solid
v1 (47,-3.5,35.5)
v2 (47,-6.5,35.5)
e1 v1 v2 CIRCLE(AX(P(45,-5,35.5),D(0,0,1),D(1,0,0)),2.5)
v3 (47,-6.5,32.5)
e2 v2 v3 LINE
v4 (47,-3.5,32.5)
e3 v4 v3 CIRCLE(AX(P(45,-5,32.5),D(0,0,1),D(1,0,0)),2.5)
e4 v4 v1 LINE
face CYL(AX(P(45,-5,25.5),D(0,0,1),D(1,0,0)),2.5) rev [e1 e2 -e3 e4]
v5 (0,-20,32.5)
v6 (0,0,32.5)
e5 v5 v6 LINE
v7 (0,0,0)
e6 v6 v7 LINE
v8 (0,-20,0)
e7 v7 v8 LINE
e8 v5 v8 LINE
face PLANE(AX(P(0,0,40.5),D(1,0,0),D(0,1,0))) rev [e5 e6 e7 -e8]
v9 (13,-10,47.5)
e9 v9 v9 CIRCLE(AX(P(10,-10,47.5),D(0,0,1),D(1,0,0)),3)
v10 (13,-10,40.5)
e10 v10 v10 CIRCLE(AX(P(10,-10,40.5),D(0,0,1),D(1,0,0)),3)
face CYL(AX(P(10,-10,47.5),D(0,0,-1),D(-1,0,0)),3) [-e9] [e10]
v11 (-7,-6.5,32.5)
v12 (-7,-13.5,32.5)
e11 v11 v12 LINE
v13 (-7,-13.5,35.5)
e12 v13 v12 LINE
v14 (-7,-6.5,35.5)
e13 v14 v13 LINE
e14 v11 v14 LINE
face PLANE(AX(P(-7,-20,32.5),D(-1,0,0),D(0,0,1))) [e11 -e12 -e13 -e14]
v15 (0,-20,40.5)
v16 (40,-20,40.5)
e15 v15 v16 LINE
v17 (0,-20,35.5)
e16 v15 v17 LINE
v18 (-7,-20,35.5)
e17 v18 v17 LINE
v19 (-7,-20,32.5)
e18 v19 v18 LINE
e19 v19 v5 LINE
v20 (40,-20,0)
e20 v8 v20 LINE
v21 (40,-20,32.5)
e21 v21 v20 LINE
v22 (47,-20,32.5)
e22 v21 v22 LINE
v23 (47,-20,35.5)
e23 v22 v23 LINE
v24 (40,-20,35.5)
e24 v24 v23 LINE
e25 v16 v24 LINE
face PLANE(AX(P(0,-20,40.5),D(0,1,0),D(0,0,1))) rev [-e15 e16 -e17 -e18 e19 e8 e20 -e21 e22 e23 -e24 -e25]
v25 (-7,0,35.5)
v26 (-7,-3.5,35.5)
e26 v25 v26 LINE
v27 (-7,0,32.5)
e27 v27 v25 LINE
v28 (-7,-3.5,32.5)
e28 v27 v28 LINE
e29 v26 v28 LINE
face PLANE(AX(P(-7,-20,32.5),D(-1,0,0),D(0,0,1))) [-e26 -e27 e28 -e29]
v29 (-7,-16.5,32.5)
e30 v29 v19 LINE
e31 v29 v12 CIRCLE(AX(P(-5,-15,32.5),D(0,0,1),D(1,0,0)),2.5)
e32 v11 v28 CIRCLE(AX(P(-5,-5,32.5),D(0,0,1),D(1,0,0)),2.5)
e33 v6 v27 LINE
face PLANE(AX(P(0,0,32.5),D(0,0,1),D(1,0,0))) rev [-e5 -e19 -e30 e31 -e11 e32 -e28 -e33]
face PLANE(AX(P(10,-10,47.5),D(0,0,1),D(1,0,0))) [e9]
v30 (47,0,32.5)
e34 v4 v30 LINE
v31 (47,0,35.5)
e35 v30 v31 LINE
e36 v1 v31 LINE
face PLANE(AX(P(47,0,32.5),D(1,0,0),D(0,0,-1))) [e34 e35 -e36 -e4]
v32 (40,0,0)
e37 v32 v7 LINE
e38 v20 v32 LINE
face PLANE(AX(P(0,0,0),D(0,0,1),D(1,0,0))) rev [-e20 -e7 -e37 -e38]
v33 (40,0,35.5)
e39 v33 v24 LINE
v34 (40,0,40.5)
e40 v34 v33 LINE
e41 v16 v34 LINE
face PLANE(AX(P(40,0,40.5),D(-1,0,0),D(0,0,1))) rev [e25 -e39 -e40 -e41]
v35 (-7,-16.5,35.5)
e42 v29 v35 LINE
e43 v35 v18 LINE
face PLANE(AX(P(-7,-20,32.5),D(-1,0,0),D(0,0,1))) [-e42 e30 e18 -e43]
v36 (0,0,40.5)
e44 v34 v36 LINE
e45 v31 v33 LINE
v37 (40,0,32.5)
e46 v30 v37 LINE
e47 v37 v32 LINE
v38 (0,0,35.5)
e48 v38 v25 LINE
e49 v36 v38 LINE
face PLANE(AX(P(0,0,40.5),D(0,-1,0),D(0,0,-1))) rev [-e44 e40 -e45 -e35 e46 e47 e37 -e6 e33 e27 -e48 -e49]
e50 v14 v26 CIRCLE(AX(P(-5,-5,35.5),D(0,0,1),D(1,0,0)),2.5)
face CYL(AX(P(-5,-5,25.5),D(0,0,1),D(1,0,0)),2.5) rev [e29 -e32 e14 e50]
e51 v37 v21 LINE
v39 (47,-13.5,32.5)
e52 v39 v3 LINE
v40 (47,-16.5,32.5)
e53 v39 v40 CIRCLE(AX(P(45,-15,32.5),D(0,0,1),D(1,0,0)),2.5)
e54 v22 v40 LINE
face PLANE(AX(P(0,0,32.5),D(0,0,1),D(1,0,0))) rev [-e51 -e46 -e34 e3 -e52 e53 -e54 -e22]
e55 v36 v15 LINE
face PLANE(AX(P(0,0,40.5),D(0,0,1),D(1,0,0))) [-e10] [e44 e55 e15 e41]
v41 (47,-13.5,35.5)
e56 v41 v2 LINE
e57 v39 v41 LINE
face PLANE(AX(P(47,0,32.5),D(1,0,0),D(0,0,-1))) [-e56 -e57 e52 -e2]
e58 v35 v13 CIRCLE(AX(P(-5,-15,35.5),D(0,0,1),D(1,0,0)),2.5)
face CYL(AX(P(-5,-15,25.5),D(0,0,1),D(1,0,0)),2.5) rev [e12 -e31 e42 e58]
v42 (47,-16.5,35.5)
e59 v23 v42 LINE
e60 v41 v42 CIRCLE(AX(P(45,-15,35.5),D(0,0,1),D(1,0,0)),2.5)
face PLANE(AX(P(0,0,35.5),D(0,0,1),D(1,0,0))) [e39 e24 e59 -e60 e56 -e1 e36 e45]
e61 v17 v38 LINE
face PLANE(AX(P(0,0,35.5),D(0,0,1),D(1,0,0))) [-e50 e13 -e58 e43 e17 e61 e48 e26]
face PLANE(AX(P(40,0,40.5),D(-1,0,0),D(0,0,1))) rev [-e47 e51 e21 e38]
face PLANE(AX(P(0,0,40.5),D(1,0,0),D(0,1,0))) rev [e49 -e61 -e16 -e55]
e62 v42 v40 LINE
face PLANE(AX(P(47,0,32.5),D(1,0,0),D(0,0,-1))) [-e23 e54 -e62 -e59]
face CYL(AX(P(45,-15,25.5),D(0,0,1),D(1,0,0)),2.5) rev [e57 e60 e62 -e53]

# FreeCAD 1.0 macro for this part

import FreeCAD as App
import Part
import Sketcher

V = App.Vector

doc = App.newDocument("Part")
body = doc.addObject("PartDesign::Body", "Body")

# Sketch on XY plane
sketch1 = body.newObject("Sketcher::SketchObject", "Sketch")
sketch1.AttachmentSupport = (doc.getObject("XY_Plane"), [""])
sketch1.MapMode = "FlatFace"
sketch1.addGeometry([
    Part.LineSegment(V(0, 0, 0), V(0, -20, 0)),
    Part.LineSegment(V(0, -20, 0), V(40, -20, 0)),
    Part.LineSegment(V(40, -20, 0), V(40, 0, 0)),
    Part.LineSegment(V(40, 0, 0), V(0, 0, 0)),
], False)
sketch1.addConstraint([
    Sketcher.Constraint("Coincident", 0, 2, 1, 1),
    Sketcher.Constraint("Coincident", 1, 2, 2, 1),
    Sketcher.Constraint("Coincident", 2, 2, 3, 1),
    Sketcher.Constraint("Coincident", 3, 2, 0, 1),
    Sketcher.Constraint("Vertical", 0),
    Sketcher.Constraint("Horizontal", 1),
    Sketcher.Constraint("Vertical", 2),
    Sketcher.Constraint("Horizontal", 3),
    Sketcher.Constraint("Coincident", 3, 2, -1, 1),
    Sketcher.Constraint("DistanceX", 1, 1, 1, 2, 40.0),
    Sketcher.Constraint("DistanceY", 0, 2, 0, 1, 20.0),
])
pad1 = body.newObject("PartDesign::Pad", "Pad")
pad1.Profile = sketch1
pad1.Length = 40.5

# Sketch on XY plane
sketch2 = body.newObject("Sketcher::SketchObject", "Sketch001")
sketch2.AttachmentSupport = (doc.getObject("XY_Plane"), [""])
sketch2.MapMode = "FlatFace"
sketch2.AttachmentOffset = App.Placement(V(0, 0, 40.5), App.Rotation())
sketch2.addGeometry(Part.Circle(V(10, -10, 0), V(0, 0, 1), 3), False)
sketch2.addConstraint([
    Sketcher.Constraint("Diameter", 0, 6.0),
    Sketcher.Constraint("DistanceX", -1, 1, 0, 3, 10.0),
    Sketcher.Constraint("DistanceY", 0, 3, -1, 1, 10.0),
])
pad2 = body.newObject("PartDesign::Pad", "Pad001")
pad2.Profile = sketch2
pad2.Length = 7

# Sketch on XY plane
sketch3 = body.newObject("Sketcher::SketchObject", "Sketch002")
sketch3.AttachmentSupport = (doc.getObject("XY_Plane"), [""])
sketch3.MapMode = "FlatFace"
sketch3.AttachmentOffset = App.Placement(V(0, 0, 35.5), App.Rotation())
sketch3.addGeometry([
    Part.LineSegment(V(40, 0, 0), V(40, -20, 0)),  # 0
    Part.LineSegment(V(40, -20, 0), V(47, -20, 0)),  # 1
    Part.LineSegment(V(47, -20, 0), V(47, 0, 0)),  # 2
    Part.LineSegment(V(47, 0, 0), V(40, 0, 0)),  # 3
    Part.LineSegment(V(-7, 0, 0), V(-7, -20, 0)),  # 4
    Part.LineSegment(V(-7, -20, 0), V(0, -20, 0)),  # 5
    Part.LineSegment(V(0, -20, 0), V(0, 0, 0)),  # 6
    Part.LineSegment(V(0, 0, 0), V(-7, 0, 0)),  # 7
], False)
sketch3.addConstraint([
    Sketcher.Constraint("Coincident", 0, 2, 1, 1),
    Sketcher.Constraint("Coincident", 1, 2, 2, 1),
    Sketcher.Constraint("Coincident", 2, 2, 3, 1),
    Sketcher.Constraint("Coincident", 3, 2, 0, 1),
    Sketcher.Constraint("Coincident", 4, 2, 5, 1),
    Sketcher.Constraint("Coincident", 5, 2, 6, 1),
    Sketcher.Constraint("Coincident", 6, 2, 7, 1),
    Sketcher.Constraint("Coincident", 7, 2, 4, 1),
    Sketcher.Constraint("Vertical", 0),
    Sketcher.Constraint("Horizontal", 1),
    Sketcher.Constraint("Vertical", 2),
    Sketcher.Constraint("Horizontal", 3),
    Sketcher.Constraint("Vertical", 4),
    Sketcher.Constraint("Horizontal", 5),
    Sketcher.Constraint("Vertical", 6),
    Sketcher.Constraint("Horizontal", 7),
    Sketcher.Constraint("Coincident", 6, 2, -1, 1),
    Sketcher.Constraint("PointOnObject", 2, 2, -1),
    Sketcher.Constraint("Horizontal", 1, 2, 4, 2),
    Sketcher.Constraint("Equal", 3, 5),
    Sketcher.Constraint("DistanceX", 1, 1, 1, 2, 7.0),
    Sketcher.Constraint("DistanceY", 0, 2, 0, 1, 20.0),
    Sketcher.Constraint("DistanceX", -1, 1, 0, 2, 40.0),
])
pad3 = body.newObject("PartDesign::Pad", "Pad002")
pad3.Profile = sketch3
pad3.Length = 3
pad3.Reversed = True

# Sketch on XY plane
sketch4 = body.newObject("Sketcher::SketchObject", "Sketch003")
sketch4.AttachmentSupport = (doc.getObject("XY_Plane"), [""])
sketch4.MapMode = "FlatFace"
sketch4.AttachmentOffset = App.Placement(V(0, 0, 35.5), App.Rotation())
sketch4.addGeometry([
    Part.Circle(V(-5, -5, 0), V(0, 0, 1), 2.5),
    Part.Circle(V(45, -5, 0), V(0, 0, 1), 2.5),
    Part.Circle(V(-5, -15, 0), V(0, 0, 1), 2.5),
    Part.Circle(V(45, -15, 0), V(0, 0, 1), 2.5),
], False)
sketch4.addConstraint([
    Sketcher.Constraint("Equal", 0, 1),
    Sketcher.Constraint("Equal", 1, 2),
    Sketcher.Constraint("Equal", 2, 3),
    Sketcher.Constraint("Horizontal", 0, 3, 1, 3),
    Sketcher.Constraint("Horizontal", 2, 3, 3, 3),
    Sketcher.Constraint("Vertical", 0, 3, 2, 3),
    Sketcher.Constraint("Vertical", 1, 3, 3, 3),
    Sketcher.Constraint("Diameter", 0, 5.0),
    Sketcher.Constraint("DistanceX", 0, 3, -1, 1, 5.0),
    Sketcher.Constraint("DistanceY", 0, 3, -1, 1, 5.0),
    Sketcher.Constraint("DistanceX", -1, 1, 1, 3, 45.0),
    Sketcher.Constraint("DistanceY", 2, 3, -1, 1, 15.0),
])
pocket1 = body.newObject("PartDesign::Pocket", "Pocket")
pocket1.Profile = sketch4
pocket1.Length = 10

doc.recompute()
